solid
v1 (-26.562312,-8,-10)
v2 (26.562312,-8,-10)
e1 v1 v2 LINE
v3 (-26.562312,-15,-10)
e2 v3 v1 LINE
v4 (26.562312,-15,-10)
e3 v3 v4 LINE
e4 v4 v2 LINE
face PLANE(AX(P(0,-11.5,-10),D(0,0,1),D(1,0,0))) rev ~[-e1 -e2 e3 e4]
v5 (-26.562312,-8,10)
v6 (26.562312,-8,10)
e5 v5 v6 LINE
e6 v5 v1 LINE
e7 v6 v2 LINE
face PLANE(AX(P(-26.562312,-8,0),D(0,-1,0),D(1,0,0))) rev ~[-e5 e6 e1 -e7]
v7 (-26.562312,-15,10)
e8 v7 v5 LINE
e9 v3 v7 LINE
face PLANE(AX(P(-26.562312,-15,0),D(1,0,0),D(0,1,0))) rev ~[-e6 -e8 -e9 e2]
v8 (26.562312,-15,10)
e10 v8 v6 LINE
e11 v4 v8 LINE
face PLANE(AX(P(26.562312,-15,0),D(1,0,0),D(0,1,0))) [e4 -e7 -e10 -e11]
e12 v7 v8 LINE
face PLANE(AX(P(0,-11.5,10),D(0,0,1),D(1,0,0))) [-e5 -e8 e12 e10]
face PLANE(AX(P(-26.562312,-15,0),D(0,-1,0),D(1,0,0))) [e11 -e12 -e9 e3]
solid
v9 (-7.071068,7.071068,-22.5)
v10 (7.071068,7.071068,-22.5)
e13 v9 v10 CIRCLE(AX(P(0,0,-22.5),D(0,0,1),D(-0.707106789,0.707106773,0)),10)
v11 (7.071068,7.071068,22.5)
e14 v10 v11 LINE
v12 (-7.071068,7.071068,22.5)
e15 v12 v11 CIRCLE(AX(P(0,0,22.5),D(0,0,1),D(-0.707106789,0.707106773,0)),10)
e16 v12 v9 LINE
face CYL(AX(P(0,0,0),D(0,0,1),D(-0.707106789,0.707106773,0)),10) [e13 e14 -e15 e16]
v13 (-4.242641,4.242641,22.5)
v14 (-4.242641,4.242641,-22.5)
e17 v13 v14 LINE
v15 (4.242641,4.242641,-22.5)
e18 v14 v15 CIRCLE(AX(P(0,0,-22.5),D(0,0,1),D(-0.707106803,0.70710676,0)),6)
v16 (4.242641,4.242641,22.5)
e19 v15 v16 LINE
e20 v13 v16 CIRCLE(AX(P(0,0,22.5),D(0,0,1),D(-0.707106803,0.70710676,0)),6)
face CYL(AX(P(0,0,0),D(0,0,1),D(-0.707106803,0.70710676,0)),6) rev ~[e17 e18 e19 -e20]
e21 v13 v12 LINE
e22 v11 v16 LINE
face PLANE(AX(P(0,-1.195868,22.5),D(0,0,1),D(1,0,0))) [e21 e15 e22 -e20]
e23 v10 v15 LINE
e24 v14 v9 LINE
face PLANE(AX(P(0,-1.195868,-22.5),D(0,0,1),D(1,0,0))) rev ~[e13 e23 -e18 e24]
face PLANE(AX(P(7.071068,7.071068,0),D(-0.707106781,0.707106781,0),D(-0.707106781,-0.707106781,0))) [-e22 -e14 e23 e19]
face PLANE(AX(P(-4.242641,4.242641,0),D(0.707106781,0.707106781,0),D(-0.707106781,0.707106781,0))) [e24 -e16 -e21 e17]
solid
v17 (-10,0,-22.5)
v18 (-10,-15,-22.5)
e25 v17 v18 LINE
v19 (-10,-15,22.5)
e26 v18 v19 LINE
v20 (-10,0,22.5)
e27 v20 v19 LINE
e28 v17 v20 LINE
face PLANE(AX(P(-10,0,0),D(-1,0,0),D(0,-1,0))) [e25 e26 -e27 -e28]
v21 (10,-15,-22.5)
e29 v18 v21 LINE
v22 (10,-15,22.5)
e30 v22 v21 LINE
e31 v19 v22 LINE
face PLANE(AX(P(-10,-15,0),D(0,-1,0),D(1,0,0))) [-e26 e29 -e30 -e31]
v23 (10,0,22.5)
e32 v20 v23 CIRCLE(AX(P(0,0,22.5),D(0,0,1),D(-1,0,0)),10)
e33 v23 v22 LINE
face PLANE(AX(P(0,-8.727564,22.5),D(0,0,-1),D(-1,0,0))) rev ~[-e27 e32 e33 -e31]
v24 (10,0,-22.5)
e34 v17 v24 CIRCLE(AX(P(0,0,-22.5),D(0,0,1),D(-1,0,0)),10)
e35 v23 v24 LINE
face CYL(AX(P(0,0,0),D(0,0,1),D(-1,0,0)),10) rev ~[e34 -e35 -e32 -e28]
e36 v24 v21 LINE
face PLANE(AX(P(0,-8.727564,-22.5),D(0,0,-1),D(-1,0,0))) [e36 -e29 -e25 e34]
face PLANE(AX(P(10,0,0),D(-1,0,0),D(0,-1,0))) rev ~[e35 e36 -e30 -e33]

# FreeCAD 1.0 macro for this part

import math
import FreeCAD as App
import Part
import Sketcher
from FreeCAD import Vector
Q = App.Units.Quantity


def add_polygon(sketch, points):
    """Adds a closed chain of lines whose ends are joined by coincident constraints."""
    first, n = sketch.GeometryCount, len(points)
    for a, b in zip(points, points[1:] + points[:1]):
        sketch.addGeometry(Part.LineSegment(App.Vector(*a, 0), App.Vector(*b, 0)), False)
    for i in range(n):
        sketch.addConstraint(Sketcher.Constraint("Coincident", first + i, 2, first + (i + 1) % n, 1))

doc = App.newDocument("Part")
body = doc.addObject("PartDesign::Body", "Body")

# Sketch on XY plane
sketch1 = body.newObject("Sketcher::SketchObject", "Sketch")
sketch1.AttachmentSupport = (doc.getObject("XY_Plane"), [""])
sketch1.MapMode = "FlatFace"
sketch1.addGeometry([
    Part.ArcOfCircle(Part.Circle(Vector(0, 0, 0), Vector(0, 0, 1), 10), math.radians(135), math.radians(405)),
    Part.LineSegment(Vector(7.1, 7.1, 0), Vector(4.2, 4.2, 0)),
    Part.ArcOfCircle(Part.Circle(Vector(0, 0, 0), Vector(0, 0, 1), 6), math.radians(135), math.radians(405)),
    Part.LineSegment(Vector(-4.2, 4.2, 0), Vector(-7.1, 7.1, 0)),
], False)
sketch1.addConstraint([
    Sketcher.Constraint("Coincident", 0, 2, 1, 1),
    Sketcher.Constraint("Coincident", 1, 2, 2, 2),
    Sketcher.Constraint("Coincident", 2, 1, 3, 1),
    Sketcher.Constraint("Coincident", 3, 2, 0, 1),
    Sketcher.Constraint("Coincident", 0, 3, -1, 1),
    Sketcher.Constraint("Coincident", 2, 3, -1, 1),
    Sketcher.Constraint("Perpendicular", 1, 3),
    Sketcher.Constraint("Horizontal", 1, 2, 2, 1),
    Sketcher.Constraint("Horizontal", 0, 2, 3, 2),
    Sketcher.Constraint("Radius", 0, Q("10 mm")),
    Sketcher.Constraint("Radius", 2, Q("6 mm")),
    Sketcher.Constraint("DistanceX", -1, 1, 0, 2, Q("7.071068 mm")),
])
pad1 = body.newObject("PartDesign::Pad", "Pad")
pad1.Profile = sketch1
pad1.Length = 45
pad1.Midplane = True
body2 = doc.addObject("PartDesign::Body", "Body001")

# Sketch on XY plane
sketch2 = body2.newObject("Sketcher::SketchObject", "Sketch001")
sketch2.AttachmentSupport = (doc.getObject("XY_Plane001"), [""])
sketch2.MapMode = "FlatFace"
sketch2.addGeometry([
    Part.ArcOfCircle(Part.Circle(Vector(0, 0, 0), Vector(0, 0, 1), 10), math.radians(180), math.radians(360)),
    Part.LineSegment(Vector(-10, 0, 0), Vector(-10, -15, 0)),
    Part.LineSegment(Vector(-10, -15, 0), Vector(10, -15, 0)),
    Part.LineSegment(Vector(10, -15, 0), Vector(10, 0, 0)),
], False)
sketch2.addConstraint([
    Sketcher.Constraint("Tangent", 0, 1, 1, 1),
    Sketcher.Constraint("Coincident", 1, 2, 2, 1),
    Sketcher.Constraint("Coincident", 2, 2, 3, 1),
    Sketcher.Constraint("Tangent", 3, 2, 0, 2),
    Sketcher.Constraint("Vertical", 1),
    Sketcher.Constraint("Horizontal", 2),
    Sketcher.Constraint("Vertical", 3),
    Sketcher.Constraint("Coincident", 0, 3, -1, 1),
    Sketcher.Constraint("Radius", 0, Q("10 mm")),
    Sketcher.Constraint("DistanceY", 1, 2, 1, 1, Q("15 mm")),
])
pad2 = body2.newObject("PartDesign::Pad", "Pad001")
pad2.Profile = sketch2
pad2.Length = 45
pad2.Midplane = True
body3 = doc.addObject("PartDesign::Body", "Body002")

# Sketch on XY plane
sketch3 = body3.newObject("Sketcher::SketchObject", "Sketch002")
sketch3.AttachmentSupport = (doc.getObject("XY_Plane002"), [""])
sketch3.MapMode = "FlatFace"
add_polygon(sketch3, [(-27, -8), (-27, -15), (27, -15), (27, -8)])  # lines 0-3
sketch3.addConstraint([
    Sketcher.Constraint("Vertical", 0),
    Sketcher.Constraint("Horizontal", 1),
    Sketcher.Constraint("Vertical", 2),
    Sketcher.Constraint("Horizontal", 3),
    Sketcher.Constraint("DistanceY", 0, 2, 0, 1, Q("7 mm")),
    Sketcher.Constraint("DistanceY", 0, 2, -1, 1, Q("15 mm")),
    Sketcher.Constraint("DistanceX", 1, 1, 1, 2, Q("53.124624 mm")),
    Sketcher.Constraint("DistanceX", 0, 2, -1, 1, Q("26.562312 mm")),
])
pad3 = body3.newObject("PartDesign::Pad", "Pad002")
pad3.Profile = sketch3
pad3.Length = 20
pad3.Midplane = True

doc.recompute()
